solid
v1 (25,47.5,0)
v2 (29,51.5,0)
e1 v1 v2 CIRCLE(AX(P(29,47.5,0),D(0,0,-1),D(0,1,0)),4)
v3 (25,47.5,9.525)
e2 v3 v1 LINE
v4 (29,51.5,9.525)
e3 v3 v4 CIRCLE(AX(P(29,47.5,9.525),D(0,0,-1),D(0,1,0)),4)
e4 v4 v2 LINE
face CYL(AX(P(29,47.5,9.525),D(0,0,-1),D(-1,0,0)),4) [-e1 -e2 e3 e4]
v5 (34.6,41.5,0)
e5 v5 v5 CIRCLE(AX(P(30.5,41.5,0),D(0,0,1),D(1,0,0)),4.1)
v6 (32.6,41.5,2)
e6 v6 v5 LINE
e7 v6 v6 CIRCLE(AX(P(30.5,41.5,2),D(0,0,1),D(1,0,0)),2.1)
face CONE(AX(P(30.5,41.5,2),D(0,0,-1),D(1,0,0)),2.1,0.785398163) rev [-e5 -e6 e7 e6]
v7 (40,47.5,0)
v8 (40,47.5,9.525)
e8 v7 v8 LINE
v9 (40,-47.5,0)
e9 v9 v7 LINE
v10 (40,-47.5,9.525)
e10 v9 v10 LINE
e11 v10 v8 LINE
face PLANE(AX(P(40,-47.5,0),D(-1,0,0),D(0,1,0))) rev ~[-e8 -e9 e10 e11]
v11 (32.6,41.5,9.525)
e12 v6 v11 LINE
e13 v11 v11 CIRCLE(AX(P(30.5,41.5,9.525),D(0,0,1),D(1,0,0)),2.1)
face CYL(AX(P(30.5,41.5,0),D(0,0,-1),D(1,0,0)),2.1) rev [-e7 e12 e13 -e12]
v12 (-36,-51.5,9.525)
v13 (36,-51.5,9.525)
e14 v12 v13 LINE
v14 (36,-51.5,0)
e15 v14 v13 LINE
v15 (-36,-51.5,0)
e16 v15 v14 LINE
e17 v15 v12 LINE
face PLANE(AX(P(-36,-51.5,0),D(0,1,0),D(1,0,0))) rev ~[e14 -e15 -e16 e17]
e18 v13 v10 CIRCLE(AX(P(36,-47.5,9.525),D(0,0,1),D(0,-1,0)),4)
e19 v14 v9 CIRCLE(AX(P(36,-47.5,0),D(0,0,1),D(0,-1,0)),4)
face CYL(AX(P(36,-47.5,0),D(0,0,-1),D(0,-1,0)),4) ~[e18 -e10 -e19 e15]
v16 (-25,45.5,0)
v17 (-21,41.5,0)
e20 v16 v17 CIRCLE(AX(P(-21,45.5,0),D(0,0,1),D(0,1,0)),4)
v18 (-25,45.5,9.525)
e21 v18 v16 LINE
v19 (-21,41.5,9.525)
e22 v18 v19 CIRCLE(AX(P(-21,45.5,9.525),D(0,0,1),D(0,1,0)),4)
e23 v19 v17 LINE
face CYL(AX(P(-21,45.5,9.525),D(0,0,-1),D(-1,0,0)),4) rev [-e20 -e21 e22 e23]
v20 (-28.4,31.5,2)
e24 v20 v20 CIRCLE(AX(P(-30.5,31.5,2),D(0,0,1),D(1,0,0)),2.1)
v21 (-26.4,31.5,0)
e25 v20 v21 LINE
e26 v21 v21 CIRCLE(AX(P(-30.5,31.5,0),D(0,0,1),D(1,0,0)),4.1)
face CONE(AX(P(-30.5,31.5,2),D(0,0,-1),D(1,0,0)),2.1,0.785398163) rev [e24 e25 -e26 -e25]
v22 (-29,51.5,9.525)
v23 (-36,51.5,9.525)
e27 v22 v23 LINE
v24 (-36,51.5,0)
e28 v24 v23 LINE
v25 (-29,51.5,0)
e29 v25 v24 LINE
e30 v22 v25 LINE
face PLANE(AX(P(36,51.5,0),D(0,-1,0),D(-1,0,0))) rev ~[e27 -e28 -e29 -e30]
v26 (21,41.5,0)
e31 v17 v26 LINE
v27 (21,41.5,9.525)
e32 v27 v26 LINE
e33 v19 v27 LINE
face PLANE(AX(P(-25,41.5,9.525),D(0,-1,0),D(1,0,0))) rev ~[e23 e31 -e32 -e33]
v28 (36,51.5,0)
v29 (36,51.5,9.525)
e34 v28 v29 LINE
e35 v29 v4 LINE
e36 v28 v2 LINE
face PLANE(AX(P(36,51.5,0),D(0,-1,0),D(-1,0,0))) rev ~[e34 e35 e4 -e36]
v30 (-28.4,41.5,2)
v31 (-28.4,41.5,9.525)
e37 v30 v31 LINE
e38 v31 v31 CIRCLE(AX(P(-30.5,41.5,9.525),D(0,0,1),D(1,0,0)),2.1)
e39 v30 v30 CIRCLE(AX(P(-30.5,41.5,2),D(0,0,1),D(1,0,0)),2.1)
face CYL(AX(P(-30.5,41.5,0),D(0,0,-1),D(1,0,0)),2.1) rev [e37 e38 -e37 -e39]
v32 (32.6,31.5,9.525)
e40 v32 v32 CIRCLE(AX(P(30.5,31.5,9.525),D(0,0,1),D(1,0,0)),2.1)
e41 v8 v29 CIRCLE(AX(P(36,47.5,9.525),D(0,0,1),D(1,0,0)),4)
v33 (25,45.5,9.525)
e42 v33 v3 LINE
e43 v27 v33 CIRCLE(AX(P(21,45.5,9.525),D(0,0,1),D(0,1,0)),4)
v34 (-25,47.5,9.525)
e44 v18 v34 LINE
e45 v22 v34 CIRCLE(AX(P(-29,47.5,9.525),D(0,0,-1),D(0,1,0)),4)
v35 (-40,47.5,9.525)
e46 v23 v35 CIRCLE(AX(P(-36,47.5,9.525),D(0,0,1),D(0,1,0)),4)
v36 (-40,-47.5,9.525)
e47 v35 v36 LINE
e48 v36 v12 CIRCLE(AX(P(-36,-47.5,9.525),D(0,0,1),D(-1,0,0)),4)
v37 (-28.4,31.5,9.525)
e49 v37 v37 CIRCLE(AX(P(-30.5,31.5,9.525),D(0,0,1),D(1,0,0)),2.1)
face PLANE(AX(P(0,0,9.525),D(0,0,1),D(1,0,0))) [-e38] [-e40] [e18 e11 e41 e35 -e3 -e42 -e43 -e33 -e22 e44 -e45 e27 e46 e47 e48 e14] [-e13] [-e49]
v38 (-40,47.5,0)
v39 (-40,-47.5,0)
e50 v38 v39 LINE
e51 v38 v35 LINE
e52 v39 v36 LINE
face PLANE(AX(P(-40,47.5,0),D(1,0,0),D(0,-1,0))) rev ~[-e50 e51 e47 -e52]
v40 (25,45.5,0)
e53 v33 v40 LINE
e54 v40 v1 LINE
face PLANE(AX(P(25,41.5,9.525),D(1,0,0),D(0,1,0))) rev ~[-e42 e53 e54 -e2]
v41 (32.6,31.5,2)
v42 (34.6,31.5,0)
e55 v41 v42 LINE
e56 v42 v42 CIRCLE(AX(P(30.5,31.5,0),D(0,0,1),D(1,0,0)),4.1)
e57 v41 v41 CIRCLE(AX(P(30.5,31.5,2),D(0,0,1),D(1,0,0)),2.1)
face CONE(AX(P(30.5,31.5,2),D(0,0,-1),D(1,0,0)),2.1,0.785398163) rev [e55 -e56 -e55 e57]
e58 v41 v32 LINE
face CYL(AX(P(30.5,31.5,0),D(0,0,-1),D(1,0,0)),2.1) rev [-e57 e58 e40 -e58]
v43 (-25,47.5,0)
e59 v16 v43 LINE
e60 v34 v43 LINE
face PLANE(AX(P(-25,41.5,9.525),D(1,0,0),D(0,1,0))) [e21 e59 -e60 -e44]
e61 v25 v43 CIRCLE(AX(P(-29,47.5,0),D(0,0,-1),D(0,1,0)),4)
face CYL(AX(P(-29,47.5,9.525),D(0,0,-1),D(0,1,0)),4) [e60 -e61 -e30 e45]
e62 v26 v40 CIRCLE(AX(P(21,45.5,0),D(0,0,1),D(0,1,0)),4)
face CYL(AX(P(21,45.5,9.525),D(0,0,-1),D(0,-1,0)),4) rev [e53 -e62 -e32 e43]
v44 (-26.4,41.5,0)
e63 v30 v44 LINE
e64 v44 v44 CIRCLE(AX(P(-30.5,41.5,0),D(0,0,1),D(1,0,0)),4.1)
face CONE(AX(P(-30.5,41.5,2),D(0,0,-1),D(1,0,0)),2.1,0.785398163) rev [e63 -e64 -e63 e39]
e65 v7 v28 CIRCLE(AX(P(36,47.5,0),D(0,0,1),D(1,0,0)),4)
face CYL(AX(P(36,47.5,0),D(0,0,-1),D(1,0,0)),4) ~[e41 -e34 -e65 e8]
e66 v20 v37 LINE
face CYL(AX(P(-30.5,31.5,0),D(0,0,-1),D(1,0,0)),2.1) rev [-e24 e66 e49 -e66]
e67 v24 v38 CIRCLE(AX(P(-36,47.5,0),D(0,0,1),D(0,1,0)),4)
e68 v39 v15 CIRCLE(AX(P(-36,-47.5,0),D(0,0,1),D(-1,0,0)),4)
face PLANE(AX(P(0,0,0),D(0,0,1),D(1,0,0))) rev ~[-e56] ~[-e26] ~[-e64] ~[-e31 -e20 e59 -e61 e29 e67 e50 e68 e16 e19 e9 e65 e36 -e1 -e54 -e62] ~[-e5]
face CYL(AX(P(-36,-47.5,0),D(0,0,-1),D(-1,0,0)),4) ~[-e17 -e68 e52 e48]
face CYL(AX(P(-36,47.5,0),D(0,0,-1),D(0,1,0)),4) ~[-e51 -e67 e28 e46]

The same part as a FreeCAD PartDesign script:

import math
import FreeCAD as App
import Part
import Sketcher
Q = App.Units.Quantity


def edges_at(feature, points):
    """Names of the edges that pass closest to the given points."""
    edges = feature.Shape.Edges
    near = lambda p: min(range(len(edges)), key=lambda i: edges[i].distToShape(Part.Vertex(*p))[0])
    return sorted({f"Edge{near(p) + 1}" for p in points})

doc = App.newDocument("Part")
body = doc.addObject("PartDesign::Body", "Body")

sketch1 = body.newObject("Sketcher::SketchObject", "Sketch")
sketch1.AttachmentSupport = (doc.getObject("XY_Plane"), [""])
sketch1.MapMode = "FlatFace"
sketch1.addGeometry([
    Part.ArcOfCircle(Part.Circle(App.Vector(36, 47.5, 0), App.Vector(0, 0, 1), 4), math.radians(0), math.radians(90)),
    Part.LineSegment(App.Vector(36, 51.5, 0), App.Vector(-36, 51.5, 0)),
    Part.ArcOfCircle(Part.Circle(App.Vector(-36, 47.5, 0), App.Vector(0, 0, 1), 4), math.radians(90), math.radians(180)),
    Part.LineSegment(App.Vector(-40, 47.5, 0), App.Vector(-40, -47.5, 0)),
    Part.ArcOfCircle(Part.Circle(App.Vector(-36, -47.5, 0), App.Vector(0, 0, 1), 4), math.radians(180), math.radians(270)),
    Part.LineSegment(App.Vector(-36, -51.5, 0), App.Vector(36, -51.5, 0)),
    Part.ArcOfCircle(Part.Circle(App.Vector(36, -47.5, 0), App.Vector(0, 0, 1), 4), math.radians(-90), math.radians(0)),
    Part.LineSegment(App.Vector(40, -47.5, 0), App.Vector(40, 47.5, 0)),
    Part.Circle(App.Vector(-30.5, 31.5, 0), App.Vector(0, 0, 1), 2.1),
    Part.Circle(App.Vector(30.5, 31.5, 0), App.Vector(0, 0, 1), 2.1),
    Part.Circle(App.Vector(-30.5, 41.5, 0), App.Vector(0, 0, 1), 2.1),
    Part.Circle(App.Vector(30.5, 41.5, 0), App.Vector(0, 0, 1), 2.1),
], False)
sketch1.addConstraint([
    Sketcher.Constraint("Tangent", 0, 2, 1, 1),
    Sketcher.Constraint("Tangent", 1, 2, 2, 1),
    Sketcher.Constraint("Tangent", 2, 2, 3, 1),
    Sketcher.Constraint("Tangent", 3, 2, 4, 1),
    Sketcher.Constraint("Tangent", 4, 2, 5, 1),
    Sketcher.Constraint("Tangent", 5, 2, 6, 1),
    Sketcher.Constraint("Tangent", 6, 2, 7, 1),
    Sketcher.Constraint("Tangent", 7, 2, 0, 1),
    Sketcher.Constraint("Horizontal", 1),
    Sketcher.Constraint("Vertical", 3),
    Sketcher.Constraint("Horizontal", 5),
    Sketcher.Constraint("Vertical", 7),
    Sketcher.Constraint("Equal", 0, 2),
    Sketcher.Constraint("Equal", 2, 4),
    Sketcher.Constraint("Equal", 4, 6),
    Sketcher.Constraint("Equal", 8, 9),
    Sketcher.Constraint("Equal", 9, 10),
    Sketcher.Constraint("Equal", 10, 11),
    Sketcher.Constraint("Symmetric", 0, 3, 4, 3, -1, 1),
    Sketcher.Constraint("Symmetric", 8, 3, 9, 3, -2),
    Sketcher.Constraint("Symmetric", 10, 3, 11, 3, -2),
    Sketcher.Constraint("Vertical", 8, 3, 10, 3),
    Sketcher.Constraint("Radius", 0, Q("4 mm")),
    Sketcher.Constraint("Diameter", 8, Q("4.2 mm")),
    Sketcher.Constraint("DistanceX", 1, 2, 1, 1, Q("72 mm")),
    Sketcher.Constraint("DistanceY", 3, 2, 3, 1, Q("95 mm")),
    Sketcher.Constraint("DistanceY", 8, 3, 2, 3, Q("16 mm")),
    Sketcher.Constraint("DistanceX", 8, 3, 9, 3, Q("61 mm")),
    Sketcher.Constraint("DistanceY", 10, 3, 2, 3, Q("6 mm")),
])
pad1 = body.newObject("PartDesign::Pad", "Pad")
pad1.Profile = sketch1
pad1.Length = 9.525
doc.recompute()

chamfer = body.newObject("PartDesign::Chamfer", "Chamfer")
chamfer.Base = (pad1, edges_at(pad1, [
    (28.4, 41.5, 0),
    (28.4, 31.5, 0),
    (-32.6, 31.5, 0),
    (-32.6, 41.5, 0),
]))
chamfer.ChamferType = "Two distances"
chamfer.Size = 2
chamfer.Size2 = 2

sketch2 = body.newObject("Sketcher::SketchObject", "Sketch001")
sketch2.AttachmentSupport = (doc.getObject("XY_Plane"), [""])
sketch2.MapMode = "FlatFace"
sketch2.AttachmentOffset = App.Placement(App.Vector(0, 0, 9.525), App.Rotation())
sketch2.addGeometry([
    Part.LineSegment(App.Vector(-25, 52, 0), App.Vector(-25, 42, 0)),
    Part.LineSegment(App.Vector(-25, 42, 0), App.Vector(25, 42, 0)),
    Part.LineSegment(App.Vector(25, 42, 0), App.Vector(25, 52, 0)),
    Part.LineSegment(App.Vector(25, 52, 0), App.Vector(-25, 52, 0)),
], False)
sketch2.addConstraint([
    Sketcher.Constraint("Coincident", 0, 2, 1, 1),
    Sketcher.Constraint("Coincident", 1, 2, 2, 1),
    Sketcher.Constraint("Coincident", 2, 2, 3, 1),
    Sketcher.Constraint("Coincident", 3, 2, 0, 1),
    Sketcher.Constraint("Vertical", 0),
    Sketcher.Constraint("Horizontal", 1),
    Sketcher.Constraint("Vertical", 2),
    Sketcher.Constraint("Horizontal", 3),
    Sketcher.Constraint("DistanceX", 1, 1, 1, 2, Q("50 mm")),
    Sketcher.Constraint("DistanceY", 0, 2, 0, 1, Q("10 mm")),
    Sketcher.Constraint("DistanceX", 0, 2, -1, 1, Q("25 mm")),
    Sketcher.Constraint("DistanceY", -1, 1, 0, 2, Q("41.5 mm")),
])
pocket1 = body.newObject("PartDesign::Pocket", "Pocket")
pocket1.Profile = sketch2
pocket1.Length = 25
doc.recompute()

fillet = body.newObject("PartDesign::Fillet", "Fillet")
fillet.Base = (pocket1, edges_at(pocket1, [(-25, 51.5, 4.763), (25, 51.5, 4.763)]))
fillet.Radius = 4
doc.recompute()

fillet2 = body.newObject("PartDesign::Fillet", "Fillet001")
fillet2.Base = (fillet, edges_at(fillet, [(25, 41.5, 4.763), (-25, 41.5, 4.763)]))
fillet2.Radius = 4

doc.recompute()
